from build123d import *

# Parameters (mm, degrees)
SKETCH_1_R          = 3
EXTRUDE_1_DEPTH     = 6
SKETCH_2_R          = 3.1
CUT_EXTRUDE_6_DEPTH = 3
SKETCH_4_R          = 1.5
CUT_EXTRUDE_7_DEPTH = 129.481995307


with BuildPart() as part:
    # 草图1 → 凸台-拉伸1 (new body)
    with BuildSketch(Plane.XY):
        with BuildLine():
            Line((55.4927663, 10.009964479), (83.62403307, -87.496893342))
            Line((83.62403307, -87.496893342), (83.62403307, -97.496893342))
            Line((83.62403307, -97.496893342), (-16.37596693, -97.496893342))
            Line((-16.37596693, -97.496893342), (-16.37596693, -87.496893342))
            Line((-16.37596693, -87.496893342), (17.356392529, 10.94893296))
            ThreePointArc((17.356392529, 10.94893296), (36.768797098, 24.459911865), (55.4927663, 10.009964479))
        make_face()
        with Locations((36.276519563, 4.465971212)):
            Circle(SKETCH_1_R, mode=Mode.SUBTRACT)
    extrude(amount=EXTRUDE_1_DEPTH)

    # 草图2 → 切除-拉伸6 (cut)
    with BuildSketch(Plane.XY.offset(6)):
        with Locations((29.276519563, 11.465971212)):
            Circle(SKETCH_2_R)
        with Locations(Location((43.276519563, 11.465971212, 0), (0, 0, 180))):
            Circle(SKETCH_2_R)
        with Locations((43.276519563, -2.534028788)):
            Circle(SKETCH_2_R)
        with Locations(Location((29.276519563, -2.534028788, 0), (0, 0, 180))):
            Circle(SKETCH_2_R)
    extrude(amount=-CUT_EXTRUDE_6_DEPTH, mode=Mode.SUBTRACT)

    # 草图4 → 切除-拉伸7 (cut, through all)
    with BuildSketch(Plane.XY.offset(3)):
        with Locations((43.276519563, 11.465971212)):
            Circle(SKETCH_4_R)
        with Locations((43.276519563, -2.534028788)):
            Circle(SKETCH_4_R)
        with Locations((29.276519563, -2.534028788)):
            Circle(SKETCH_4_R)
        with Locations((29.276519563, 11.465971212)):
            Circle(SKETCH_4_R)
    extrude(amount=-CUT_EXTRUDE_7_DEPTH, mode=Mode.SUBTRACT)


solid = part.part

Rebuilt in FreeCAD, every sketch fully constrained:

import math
import FreeCAD as App
import Part
import Sketcher
from FreeCAD import Vector

doc = App.newDocument("Part")
body = doc.addObject("PartDesign::Body", "Body")

sketch1 = body.newObject("Sketcher::SketchObject", "Sketch")
sketch1.AttachmentSupport = (doc.getObject("XY_Plane"), [""])
sketch1.MapMode = "FlatFace"
sketch1.addGeometry(Part.LineSegment(Vector(83.624033, -87.496893, 0), Vector(55.492766, 10.009964, 0)), False)
sketch1.addGeometry(Part.ArcOfCircle(Part.Circle(Vector(36.27652, 4.465971, 0), Vector(0, 0, 1), 20), math.radians(16.093143), math.radians(161.08603)), False)
sketch1.addGeometry(Part.LineSegment(Vector(17.356393, 10.948933, 0), Vector(-16.375967, -87.496893, 0)), False)
sketch1.addGeometry(Part.LineSegment(Vector(-16.375967, -87.496893, 0), Vector(-16.375967, -97.496893, 0)), False)
sketch1.addGeometry(Part.LineSegment(Vector(-16.375967, -97.496893, 0), Vector(83.624033, -97.496893, 0)), False)
sketch1.addGeometry(Part.LineSegment(Vector(83.624033, -97.496893, 0), Vector(83.624033, -87.496893, 0)), False)
sketch1.addGeometry(Part.Circle(Vector(36.27652, 4.465971, 0), Vector(0, 0, 1), 3), False)
sketch1.addConstraint(Sketcher.Constraint("Tangent", 0, 2, 1, 1))
sketch1.addConstraint(Sketcher.Constraint("Tangent", 1, 2, 2, 1))
sketch1.addConstraint(Sketcher.Constraint("Coincident", 2, 2, 3, 1))
sketch1.addConstraint(Sketcher.Constraint("Coincident", 3, 2, 4, 1))
sketch1.addConstraint(Sketcher.Constraint("Coincident", 4, 2, 5, 1))
sketch1.addConstraint(Sketcher.Constraint("Coincident", 5, 2, 0, 1))
sketch1.addConstraint(Sketcher.Constraint("Vertical", 3))
sketch1.addConstraint(Sketcher.Constraint("Horizontal", 4))
sketch1.addConstraint(Sketcher.Constraint("Vertical", 5))
sketch1.addConstraint(Sketcher.Constraint("Coincident", 6, 3, 1, 3))
sketch1.addConstraint(Sketcher.Constraint("Horizontal", 2, 2, 5, 2))
sketch1.addConstraint(Sketcher.Constraint("Diameter", 6, 6.0))
sketch1.addConstraint(Sketcher.Constraint("Radius", 1, 20.0))
sketch1.addConstraint(Sketcher.Constraint("DistanceX", 4, 1, 4, 2, 100.0))
sketch1.addConstraint(Sketcher.Constraint("DistanceY", 3, 2, 3, 1, 10.0))
sketch1.addConstraint(Sketcher.Constraint("Distance", 0, 101.48377))
sketch1.addConstraint(Sketcher.Constraint("DistanceX", -1, 1, 1, 3, 36.27652))
sketch1.addConstraint(Sketcher.Constraint("DistanceY", -1, 1, 1, 3, 4.465971))
sketch1.addConstraint(Sketcher.Constraint("DistanceY", 1, 3, 1, 2, 6.482962))
pad1 = body.newObject("PartDesign::Pad", "Pad")
pad1.Profile = sketch1
pad1.Length = 6

sketch2 = body.newObject("Sketcher::SketchObject", "Sketch001")
sketch2.AttachmentSupport = (doc.getObject("XY_Plane"), [""])
sketch2.MapMode = "FlatFace"
sketch2.AttachmentOffset = App.Placement(Vector(0, 0, 6), App.Rotation())
sketch2.addGeometry(Part.Circle(Vector(29.27652, 11.465971, 0), Vector(0, 0, 1), 3.1), False)
sketch2.addGeometry(Part.Circle(Vector(43.27652, 11.465971, 0), Vector(0, 0, 1), 3.1), False)
sketch2.addGeometry(Part.Circle(Vector(43.27652, -2.534029, 0), Vector(0, 0, 1), 3.1), False)
sketch2.addGeometry(Part.Circle(Vector(29.27652, -2.534029, 0), Vector(0, 0, 1), 3.1), False)
sketch2.addConstraint(Sketcher.Constraint("Equal", 0, 1))
sketch2.addConstraint(Sketcher.Constraint("Equal", 1, 2))
sketch2.addConstraint(Sketcher.Constraint("Equal", 2, 3))
sketch2.addConstraint(Sketcher.Constraint("Horizontal", 0, 3, 1, 3))
sketch2.addConstraint(Sketcher.Constraint("Horizontal", 2, 3, 3, 3))
sketch2.addConstraint(Sketcher.Constraint("Vertical", 1, 3, 2, 3))
sketch2.addConstraint(Sketcher.Constraint("Vertical", 0, 3, 3, 3))
sketch2.addConstraint(Sketcher.Constraint("Diameter", 0, 6.2))
sketch2.addConstraint(Sketcher.Constraint("DistanceX", 0, 3, 1, 3, 14.0))
sketch2.addConstraint(Sketcher.Constraint("DistanceY", 2, 3, 1, 3, 14.0))
sketch2.addConstraint(Sketcher.Constraint("DistanceX", -1, 1, 0, 3, 29.27652))
sketch2.addConstraint(Sketcher.Constraint("DistanceY", -1, 1, 0, 3, 11.465971))
pocket1 = body.newObject("PartDesign::Pocket", "Pocket")
pocket1.Profile = sketch2
pocket1.Length = 3

sketch3 = body.newObject("Sketcher::SketchObject", "Sketch002")
sketch3.AttachmentSupport = (doc.getObject("XY_Plane"), [""])
sketch3.MapMode = "FlatFace"
sketch3.AttachmentOffset = App.Placement(Vector(0, 0, 3), App.Rotation())
sketch3.addGeometry(Part.Circle(Vector(43.27652, 11.465971, 0), Vector(0, 0, 1), 1.5), False)
sketch3.addGeometry(Part.Circle(Vector(43.27652, -2.534029, 0), Vector(0, 0, 1), 1.5), False)
sketch3.addGeometry(Part.Circle(Vector(29.27652, -2.534029, 0), Vector(0, 0, 1), 1.5), False)
sketch3.addGeometry(Part.Circle(Vector(29.27652, 11.465971, 0), Vector(0, 0, 1), 1.5), False)
sketch3.addConstraint(Sketcher.Constraint("Equal", 0, 1))
sketch3.addConstraint(Sketcher.Constraint("Equal", 1, 2))
sketch3.addConstraint(Sketcher.Constraint("Equal", 2, 3))
sketch3.addConstraint(Sketcher.Constraint("Horizontal", 1, 3, 2, 3))
sketch3.addConstraint(Sketcher.Constraint("Horizontal", 0, 3, 3, 3))
sketch3.addConstraint(Sketcher.Constraint("Vertical", 0, 3, 1, 3))
sketch3.addConstraint(Sketcher.Constraint("Vertical", 2, 3, 3, 3))
sketch3.addConstraint(Sketcher.Constraint("Diameter", 0, 3.0))
sketch3.addConstraint(Sketcher.Constraint("DistanceY", 1, 3, 0, 3, 14.0))
sketch3.addConstraint(Sketcher.Constraint("DistanceX", 2, 3, 1, 3, 14.0))
sketch3.addConstraint(Sketcher.Constraint("DistanceX", -1, 1, 0, 3, 43.27652))
sketch3.addConstraint(Sketcher.Constraint("DistanceY", -1, 1, 0, 3, 11.465971))
pocket2 = body.newObject("PartDesign::Pocket", "Pocket001")
pocket2.Profile = sketch3
pocket2.Type = "ThroughAll"

doc.recompute()
